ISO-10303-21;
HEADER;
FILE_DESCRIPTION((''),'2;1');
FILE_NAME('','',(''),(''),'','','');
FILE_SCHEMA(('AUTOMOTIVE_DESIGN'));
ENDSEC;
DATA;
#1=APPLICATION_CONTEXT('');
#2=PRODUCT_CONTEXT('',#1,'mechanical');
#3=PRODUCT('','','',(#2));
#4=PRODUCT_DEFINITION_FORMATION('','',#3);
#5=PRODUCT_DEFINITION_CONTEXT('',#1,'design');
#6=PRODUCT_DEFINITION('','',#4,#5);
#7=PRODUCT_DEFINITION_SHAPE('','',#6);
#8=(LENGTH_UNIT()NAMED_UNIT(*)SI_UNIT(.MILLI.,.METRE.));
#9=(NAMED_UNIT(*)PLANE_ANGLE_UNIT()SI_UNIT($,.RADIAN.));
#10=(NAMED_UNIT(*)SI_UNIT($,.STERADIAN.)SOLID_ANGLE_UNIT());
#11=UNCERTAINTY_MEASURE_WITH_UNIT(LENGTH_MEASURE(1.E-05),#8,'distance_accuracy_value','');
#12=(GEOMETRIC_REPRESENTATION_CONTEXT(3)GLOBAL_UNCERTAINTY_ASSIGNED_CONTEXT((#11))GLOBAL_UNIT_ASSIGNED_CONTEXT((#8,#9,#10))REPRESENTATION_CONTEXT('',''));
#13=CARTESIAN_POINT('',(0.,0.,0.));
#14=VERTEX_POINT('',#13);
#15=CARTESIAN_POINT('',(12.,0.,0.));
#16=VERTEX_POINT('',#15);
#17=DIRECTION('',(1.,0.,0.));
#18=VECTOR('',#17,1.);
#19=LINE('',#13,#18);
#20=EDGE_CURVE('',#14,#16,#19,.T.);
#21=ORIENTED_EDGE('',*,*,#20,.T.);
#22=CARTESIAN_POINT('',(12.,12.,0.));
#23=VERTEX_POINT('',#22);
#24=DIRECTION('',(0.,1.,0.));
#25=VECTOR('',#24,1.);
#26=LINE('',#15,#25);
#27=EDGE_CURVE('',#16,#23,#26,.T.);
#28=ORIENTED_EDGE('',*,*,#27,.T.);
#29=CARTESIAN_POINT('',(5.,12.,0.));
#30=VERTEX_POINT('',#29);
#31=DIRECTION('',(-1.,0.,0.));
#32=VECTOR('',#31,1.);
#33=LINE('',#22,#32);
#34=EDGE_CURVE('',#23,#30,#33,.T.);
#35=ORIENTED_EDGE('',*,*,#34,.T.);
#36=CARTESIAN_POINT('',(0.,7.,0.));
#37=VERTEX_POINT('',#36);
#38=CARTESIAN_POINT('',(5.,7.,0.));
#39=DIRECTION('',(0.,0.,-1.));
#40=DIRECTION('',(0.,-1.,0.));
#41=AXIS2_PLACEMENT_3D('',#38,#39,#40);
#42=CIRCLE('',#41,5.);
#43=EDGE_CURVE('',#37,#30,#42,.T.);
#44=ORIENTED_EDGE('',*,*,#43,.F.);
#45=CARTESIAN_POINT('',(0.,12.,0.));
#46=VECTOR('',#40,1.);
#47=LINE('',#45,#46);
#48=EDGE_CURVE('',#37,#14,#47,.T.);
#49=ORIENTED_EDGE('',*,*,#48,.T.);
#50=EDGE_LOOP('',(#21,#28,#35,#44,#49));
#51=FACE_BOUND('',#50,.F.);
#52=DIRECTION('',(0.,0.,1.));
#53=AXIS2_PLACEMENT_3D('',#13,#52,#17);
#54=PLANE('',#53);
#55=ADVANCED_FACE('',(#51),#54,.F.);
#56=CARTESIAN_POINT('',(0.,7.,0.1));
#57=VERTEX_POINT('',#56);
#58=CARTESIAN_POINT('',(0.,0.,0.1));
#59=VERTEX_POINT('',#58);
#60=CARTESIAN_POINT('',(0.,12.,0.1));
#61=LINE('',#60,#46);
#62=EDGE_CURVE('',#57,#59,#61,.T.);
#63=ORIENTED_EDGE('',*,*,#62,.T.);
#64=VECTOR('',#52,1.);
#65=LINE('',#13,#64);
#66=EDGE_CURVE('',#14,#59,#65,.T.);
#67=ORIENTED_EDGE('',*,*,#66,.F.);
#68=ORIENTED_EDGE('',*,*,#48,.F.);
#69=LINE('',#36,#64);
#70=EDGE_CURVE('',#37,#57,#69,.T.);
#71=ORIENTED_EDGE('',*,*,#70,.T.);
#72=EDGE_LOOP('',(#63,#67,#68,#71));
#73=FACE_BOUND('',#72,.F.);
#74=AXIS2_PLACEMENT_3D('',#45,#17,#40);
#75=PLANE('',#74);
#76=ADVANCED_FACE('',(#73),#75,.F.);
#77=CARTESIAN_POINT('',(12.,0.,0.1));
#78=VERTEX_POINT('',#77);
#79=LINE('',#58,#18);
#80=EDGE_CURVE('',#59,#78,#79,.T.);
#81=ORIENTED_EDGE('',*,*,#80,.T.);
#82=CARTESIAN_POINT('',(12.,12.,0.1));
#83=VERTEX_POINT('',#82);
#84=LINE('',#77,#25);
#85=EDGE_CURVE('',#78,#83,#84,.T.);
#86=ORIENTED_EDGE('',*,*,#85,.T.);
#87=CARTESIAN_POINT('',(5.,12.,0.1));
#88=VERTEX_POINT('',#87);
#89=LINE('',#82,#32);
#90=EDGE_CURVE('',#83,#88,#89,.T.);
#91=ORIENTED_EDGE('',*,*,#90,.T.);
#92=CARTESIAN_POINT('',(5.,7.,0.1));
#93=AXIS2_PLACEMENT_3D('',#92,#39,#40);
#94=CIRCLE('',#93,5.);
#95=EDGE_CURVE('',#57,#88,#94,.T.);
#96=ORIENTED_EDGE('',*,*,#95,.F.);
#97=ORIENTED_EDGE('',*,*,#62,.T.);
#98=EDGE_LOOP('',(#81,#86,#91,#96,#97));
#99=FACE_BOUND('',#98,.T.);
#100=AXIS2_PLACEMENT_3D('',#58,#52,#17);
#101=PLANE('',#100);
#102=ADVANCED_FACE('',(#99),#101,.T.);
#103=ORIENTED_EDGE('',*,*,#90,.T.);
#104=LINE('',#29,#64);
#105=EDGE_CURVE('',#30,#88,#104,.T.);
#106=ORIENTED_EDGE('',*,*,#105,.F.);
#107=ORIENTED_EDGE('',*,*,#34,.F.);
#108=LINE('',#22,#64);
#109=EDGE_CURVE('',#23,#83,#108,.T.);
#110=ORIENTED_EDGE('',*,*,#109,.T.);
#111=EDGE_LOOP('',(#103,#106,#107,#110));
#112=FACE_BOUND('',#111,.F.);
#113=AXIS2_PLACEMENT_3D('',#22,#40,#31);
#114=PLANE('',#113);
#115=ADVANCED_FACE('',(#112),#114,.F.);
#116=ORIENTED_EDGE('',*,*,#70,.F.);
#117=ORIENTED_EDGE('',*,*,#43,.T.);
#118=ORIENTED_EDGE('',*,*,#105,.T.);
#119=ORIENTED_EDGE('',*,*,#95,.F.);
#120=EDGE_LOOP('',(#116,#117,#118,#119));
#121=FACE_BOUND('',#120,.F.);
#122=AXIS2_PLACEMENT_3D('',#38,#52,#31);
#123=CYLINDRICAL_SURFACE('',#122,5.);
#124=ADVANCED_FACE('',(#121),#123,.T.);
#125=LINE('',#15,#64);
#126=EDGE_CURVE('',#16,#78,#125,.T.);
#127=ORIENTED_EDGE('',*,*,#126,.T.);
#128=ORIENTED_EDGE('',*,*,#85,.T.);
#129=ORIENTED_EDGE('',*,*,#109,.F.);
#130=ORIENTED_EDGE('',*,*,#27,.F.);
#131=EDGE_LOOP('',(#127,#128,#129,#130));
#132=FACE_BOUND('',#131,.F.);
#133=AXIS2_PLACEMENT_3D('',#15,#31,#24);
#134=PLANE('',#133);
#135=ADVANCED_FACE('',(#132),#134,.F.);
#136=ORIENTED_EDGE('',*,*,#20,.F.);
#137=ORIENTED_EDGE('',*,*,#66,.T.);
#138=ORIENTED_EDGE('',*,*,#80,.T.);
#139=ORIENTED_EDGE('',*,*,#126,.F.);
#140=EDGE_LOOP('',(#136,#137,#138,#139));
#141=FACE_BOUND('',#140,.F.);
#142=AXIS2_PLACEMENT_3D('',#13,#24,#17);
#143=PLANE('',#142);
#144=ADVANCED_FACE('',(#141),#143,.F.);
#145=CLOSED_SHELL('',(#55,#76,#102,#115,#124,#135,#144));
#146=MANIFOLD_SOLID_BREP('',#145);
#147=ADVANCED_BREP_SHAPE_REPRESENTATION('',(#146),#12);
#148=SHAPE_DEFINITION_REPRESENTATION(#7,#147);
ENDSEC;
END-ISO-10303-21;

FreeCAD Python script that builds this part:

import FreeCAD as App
import Part
import Sketcher

V = App.Vector
Q = App.Units.Quantity


def edges_at(feature, points):
    """Names of the edges that pass closest to the given points."""
    edges = feature.Shape.Edges
    near = lambda p: min(range(len(edges)), key=lambda i: edges[i].distToShape(Part.Vertex(*p))[0])
    return sorted({f"Edge{near(p) + 1}" for p in points})


def add_polygon(sketch, points):
    """Adds a closed chain of lines whose ends are joined by coincident constraints."""
    first, n = sketch.GeometryCount, len(points)
    for a, b in zip(points, points[1:] + points[:1]):
        sketch.addGeometry(Part.LineSegment(App.Vector(*a, 0), App.Vector(*b, 0)), False)
    for i in range(n):
        sketch.addConstraint(Sketcher.Constraint("Coincident", first + i, 2, first + (i + 1) % n, 1))

doc = App.newDocument("Part")
body = doc.addObject("PartDesign::Body", "Body")

# Sketch on XY plane
sketch1 = body.newObject("Sketcher::SketchObject", "Sketch")
sketch1.AttachmentSupport = (doc.getObject("XY_Plane"), [""])
sketch1.MapMode = "FlatFace"
add_polygon(sketch1, [(0, 12), (0, 0), (12, 0), (12, 12)])  # lines 0-3
sketch1.addConstraint(Sketcher.Constraint("Vertical", 0))
sketch1.addConstraint(Sketcher.Constraint("Horizontal", 1))
sketch1.addConstraint(Sketcher.Constraint("Vertical", 2))
sketch1.addConstraint(Sketcher.Constraint("Horizontal", 3))
sketch1.addConstraint(Sketcher.Constraint("Coincident", 0, 2, -1, 1))
sketch1.addConstraint(Sketcher.Constraint("Equal", 3, 0))
sketch1.addConstraint(Sketcher.Constraint("DistanceX", 1, 1, 1, 2, Q("12 mm")))
pad1 = body.newObject("PartDesign::Pad", "Pad")
pad1.Profile = sketch1
pad1.Length = 0.1
doc.recompute()

fillet = body.newObject("PartDesign::Fillet", "Fillet")
fillet.Base = (pad1, edges_at(pad1, [(0, 12, 0.05)]))
fillet.Radius = 5

doc.recompute()
